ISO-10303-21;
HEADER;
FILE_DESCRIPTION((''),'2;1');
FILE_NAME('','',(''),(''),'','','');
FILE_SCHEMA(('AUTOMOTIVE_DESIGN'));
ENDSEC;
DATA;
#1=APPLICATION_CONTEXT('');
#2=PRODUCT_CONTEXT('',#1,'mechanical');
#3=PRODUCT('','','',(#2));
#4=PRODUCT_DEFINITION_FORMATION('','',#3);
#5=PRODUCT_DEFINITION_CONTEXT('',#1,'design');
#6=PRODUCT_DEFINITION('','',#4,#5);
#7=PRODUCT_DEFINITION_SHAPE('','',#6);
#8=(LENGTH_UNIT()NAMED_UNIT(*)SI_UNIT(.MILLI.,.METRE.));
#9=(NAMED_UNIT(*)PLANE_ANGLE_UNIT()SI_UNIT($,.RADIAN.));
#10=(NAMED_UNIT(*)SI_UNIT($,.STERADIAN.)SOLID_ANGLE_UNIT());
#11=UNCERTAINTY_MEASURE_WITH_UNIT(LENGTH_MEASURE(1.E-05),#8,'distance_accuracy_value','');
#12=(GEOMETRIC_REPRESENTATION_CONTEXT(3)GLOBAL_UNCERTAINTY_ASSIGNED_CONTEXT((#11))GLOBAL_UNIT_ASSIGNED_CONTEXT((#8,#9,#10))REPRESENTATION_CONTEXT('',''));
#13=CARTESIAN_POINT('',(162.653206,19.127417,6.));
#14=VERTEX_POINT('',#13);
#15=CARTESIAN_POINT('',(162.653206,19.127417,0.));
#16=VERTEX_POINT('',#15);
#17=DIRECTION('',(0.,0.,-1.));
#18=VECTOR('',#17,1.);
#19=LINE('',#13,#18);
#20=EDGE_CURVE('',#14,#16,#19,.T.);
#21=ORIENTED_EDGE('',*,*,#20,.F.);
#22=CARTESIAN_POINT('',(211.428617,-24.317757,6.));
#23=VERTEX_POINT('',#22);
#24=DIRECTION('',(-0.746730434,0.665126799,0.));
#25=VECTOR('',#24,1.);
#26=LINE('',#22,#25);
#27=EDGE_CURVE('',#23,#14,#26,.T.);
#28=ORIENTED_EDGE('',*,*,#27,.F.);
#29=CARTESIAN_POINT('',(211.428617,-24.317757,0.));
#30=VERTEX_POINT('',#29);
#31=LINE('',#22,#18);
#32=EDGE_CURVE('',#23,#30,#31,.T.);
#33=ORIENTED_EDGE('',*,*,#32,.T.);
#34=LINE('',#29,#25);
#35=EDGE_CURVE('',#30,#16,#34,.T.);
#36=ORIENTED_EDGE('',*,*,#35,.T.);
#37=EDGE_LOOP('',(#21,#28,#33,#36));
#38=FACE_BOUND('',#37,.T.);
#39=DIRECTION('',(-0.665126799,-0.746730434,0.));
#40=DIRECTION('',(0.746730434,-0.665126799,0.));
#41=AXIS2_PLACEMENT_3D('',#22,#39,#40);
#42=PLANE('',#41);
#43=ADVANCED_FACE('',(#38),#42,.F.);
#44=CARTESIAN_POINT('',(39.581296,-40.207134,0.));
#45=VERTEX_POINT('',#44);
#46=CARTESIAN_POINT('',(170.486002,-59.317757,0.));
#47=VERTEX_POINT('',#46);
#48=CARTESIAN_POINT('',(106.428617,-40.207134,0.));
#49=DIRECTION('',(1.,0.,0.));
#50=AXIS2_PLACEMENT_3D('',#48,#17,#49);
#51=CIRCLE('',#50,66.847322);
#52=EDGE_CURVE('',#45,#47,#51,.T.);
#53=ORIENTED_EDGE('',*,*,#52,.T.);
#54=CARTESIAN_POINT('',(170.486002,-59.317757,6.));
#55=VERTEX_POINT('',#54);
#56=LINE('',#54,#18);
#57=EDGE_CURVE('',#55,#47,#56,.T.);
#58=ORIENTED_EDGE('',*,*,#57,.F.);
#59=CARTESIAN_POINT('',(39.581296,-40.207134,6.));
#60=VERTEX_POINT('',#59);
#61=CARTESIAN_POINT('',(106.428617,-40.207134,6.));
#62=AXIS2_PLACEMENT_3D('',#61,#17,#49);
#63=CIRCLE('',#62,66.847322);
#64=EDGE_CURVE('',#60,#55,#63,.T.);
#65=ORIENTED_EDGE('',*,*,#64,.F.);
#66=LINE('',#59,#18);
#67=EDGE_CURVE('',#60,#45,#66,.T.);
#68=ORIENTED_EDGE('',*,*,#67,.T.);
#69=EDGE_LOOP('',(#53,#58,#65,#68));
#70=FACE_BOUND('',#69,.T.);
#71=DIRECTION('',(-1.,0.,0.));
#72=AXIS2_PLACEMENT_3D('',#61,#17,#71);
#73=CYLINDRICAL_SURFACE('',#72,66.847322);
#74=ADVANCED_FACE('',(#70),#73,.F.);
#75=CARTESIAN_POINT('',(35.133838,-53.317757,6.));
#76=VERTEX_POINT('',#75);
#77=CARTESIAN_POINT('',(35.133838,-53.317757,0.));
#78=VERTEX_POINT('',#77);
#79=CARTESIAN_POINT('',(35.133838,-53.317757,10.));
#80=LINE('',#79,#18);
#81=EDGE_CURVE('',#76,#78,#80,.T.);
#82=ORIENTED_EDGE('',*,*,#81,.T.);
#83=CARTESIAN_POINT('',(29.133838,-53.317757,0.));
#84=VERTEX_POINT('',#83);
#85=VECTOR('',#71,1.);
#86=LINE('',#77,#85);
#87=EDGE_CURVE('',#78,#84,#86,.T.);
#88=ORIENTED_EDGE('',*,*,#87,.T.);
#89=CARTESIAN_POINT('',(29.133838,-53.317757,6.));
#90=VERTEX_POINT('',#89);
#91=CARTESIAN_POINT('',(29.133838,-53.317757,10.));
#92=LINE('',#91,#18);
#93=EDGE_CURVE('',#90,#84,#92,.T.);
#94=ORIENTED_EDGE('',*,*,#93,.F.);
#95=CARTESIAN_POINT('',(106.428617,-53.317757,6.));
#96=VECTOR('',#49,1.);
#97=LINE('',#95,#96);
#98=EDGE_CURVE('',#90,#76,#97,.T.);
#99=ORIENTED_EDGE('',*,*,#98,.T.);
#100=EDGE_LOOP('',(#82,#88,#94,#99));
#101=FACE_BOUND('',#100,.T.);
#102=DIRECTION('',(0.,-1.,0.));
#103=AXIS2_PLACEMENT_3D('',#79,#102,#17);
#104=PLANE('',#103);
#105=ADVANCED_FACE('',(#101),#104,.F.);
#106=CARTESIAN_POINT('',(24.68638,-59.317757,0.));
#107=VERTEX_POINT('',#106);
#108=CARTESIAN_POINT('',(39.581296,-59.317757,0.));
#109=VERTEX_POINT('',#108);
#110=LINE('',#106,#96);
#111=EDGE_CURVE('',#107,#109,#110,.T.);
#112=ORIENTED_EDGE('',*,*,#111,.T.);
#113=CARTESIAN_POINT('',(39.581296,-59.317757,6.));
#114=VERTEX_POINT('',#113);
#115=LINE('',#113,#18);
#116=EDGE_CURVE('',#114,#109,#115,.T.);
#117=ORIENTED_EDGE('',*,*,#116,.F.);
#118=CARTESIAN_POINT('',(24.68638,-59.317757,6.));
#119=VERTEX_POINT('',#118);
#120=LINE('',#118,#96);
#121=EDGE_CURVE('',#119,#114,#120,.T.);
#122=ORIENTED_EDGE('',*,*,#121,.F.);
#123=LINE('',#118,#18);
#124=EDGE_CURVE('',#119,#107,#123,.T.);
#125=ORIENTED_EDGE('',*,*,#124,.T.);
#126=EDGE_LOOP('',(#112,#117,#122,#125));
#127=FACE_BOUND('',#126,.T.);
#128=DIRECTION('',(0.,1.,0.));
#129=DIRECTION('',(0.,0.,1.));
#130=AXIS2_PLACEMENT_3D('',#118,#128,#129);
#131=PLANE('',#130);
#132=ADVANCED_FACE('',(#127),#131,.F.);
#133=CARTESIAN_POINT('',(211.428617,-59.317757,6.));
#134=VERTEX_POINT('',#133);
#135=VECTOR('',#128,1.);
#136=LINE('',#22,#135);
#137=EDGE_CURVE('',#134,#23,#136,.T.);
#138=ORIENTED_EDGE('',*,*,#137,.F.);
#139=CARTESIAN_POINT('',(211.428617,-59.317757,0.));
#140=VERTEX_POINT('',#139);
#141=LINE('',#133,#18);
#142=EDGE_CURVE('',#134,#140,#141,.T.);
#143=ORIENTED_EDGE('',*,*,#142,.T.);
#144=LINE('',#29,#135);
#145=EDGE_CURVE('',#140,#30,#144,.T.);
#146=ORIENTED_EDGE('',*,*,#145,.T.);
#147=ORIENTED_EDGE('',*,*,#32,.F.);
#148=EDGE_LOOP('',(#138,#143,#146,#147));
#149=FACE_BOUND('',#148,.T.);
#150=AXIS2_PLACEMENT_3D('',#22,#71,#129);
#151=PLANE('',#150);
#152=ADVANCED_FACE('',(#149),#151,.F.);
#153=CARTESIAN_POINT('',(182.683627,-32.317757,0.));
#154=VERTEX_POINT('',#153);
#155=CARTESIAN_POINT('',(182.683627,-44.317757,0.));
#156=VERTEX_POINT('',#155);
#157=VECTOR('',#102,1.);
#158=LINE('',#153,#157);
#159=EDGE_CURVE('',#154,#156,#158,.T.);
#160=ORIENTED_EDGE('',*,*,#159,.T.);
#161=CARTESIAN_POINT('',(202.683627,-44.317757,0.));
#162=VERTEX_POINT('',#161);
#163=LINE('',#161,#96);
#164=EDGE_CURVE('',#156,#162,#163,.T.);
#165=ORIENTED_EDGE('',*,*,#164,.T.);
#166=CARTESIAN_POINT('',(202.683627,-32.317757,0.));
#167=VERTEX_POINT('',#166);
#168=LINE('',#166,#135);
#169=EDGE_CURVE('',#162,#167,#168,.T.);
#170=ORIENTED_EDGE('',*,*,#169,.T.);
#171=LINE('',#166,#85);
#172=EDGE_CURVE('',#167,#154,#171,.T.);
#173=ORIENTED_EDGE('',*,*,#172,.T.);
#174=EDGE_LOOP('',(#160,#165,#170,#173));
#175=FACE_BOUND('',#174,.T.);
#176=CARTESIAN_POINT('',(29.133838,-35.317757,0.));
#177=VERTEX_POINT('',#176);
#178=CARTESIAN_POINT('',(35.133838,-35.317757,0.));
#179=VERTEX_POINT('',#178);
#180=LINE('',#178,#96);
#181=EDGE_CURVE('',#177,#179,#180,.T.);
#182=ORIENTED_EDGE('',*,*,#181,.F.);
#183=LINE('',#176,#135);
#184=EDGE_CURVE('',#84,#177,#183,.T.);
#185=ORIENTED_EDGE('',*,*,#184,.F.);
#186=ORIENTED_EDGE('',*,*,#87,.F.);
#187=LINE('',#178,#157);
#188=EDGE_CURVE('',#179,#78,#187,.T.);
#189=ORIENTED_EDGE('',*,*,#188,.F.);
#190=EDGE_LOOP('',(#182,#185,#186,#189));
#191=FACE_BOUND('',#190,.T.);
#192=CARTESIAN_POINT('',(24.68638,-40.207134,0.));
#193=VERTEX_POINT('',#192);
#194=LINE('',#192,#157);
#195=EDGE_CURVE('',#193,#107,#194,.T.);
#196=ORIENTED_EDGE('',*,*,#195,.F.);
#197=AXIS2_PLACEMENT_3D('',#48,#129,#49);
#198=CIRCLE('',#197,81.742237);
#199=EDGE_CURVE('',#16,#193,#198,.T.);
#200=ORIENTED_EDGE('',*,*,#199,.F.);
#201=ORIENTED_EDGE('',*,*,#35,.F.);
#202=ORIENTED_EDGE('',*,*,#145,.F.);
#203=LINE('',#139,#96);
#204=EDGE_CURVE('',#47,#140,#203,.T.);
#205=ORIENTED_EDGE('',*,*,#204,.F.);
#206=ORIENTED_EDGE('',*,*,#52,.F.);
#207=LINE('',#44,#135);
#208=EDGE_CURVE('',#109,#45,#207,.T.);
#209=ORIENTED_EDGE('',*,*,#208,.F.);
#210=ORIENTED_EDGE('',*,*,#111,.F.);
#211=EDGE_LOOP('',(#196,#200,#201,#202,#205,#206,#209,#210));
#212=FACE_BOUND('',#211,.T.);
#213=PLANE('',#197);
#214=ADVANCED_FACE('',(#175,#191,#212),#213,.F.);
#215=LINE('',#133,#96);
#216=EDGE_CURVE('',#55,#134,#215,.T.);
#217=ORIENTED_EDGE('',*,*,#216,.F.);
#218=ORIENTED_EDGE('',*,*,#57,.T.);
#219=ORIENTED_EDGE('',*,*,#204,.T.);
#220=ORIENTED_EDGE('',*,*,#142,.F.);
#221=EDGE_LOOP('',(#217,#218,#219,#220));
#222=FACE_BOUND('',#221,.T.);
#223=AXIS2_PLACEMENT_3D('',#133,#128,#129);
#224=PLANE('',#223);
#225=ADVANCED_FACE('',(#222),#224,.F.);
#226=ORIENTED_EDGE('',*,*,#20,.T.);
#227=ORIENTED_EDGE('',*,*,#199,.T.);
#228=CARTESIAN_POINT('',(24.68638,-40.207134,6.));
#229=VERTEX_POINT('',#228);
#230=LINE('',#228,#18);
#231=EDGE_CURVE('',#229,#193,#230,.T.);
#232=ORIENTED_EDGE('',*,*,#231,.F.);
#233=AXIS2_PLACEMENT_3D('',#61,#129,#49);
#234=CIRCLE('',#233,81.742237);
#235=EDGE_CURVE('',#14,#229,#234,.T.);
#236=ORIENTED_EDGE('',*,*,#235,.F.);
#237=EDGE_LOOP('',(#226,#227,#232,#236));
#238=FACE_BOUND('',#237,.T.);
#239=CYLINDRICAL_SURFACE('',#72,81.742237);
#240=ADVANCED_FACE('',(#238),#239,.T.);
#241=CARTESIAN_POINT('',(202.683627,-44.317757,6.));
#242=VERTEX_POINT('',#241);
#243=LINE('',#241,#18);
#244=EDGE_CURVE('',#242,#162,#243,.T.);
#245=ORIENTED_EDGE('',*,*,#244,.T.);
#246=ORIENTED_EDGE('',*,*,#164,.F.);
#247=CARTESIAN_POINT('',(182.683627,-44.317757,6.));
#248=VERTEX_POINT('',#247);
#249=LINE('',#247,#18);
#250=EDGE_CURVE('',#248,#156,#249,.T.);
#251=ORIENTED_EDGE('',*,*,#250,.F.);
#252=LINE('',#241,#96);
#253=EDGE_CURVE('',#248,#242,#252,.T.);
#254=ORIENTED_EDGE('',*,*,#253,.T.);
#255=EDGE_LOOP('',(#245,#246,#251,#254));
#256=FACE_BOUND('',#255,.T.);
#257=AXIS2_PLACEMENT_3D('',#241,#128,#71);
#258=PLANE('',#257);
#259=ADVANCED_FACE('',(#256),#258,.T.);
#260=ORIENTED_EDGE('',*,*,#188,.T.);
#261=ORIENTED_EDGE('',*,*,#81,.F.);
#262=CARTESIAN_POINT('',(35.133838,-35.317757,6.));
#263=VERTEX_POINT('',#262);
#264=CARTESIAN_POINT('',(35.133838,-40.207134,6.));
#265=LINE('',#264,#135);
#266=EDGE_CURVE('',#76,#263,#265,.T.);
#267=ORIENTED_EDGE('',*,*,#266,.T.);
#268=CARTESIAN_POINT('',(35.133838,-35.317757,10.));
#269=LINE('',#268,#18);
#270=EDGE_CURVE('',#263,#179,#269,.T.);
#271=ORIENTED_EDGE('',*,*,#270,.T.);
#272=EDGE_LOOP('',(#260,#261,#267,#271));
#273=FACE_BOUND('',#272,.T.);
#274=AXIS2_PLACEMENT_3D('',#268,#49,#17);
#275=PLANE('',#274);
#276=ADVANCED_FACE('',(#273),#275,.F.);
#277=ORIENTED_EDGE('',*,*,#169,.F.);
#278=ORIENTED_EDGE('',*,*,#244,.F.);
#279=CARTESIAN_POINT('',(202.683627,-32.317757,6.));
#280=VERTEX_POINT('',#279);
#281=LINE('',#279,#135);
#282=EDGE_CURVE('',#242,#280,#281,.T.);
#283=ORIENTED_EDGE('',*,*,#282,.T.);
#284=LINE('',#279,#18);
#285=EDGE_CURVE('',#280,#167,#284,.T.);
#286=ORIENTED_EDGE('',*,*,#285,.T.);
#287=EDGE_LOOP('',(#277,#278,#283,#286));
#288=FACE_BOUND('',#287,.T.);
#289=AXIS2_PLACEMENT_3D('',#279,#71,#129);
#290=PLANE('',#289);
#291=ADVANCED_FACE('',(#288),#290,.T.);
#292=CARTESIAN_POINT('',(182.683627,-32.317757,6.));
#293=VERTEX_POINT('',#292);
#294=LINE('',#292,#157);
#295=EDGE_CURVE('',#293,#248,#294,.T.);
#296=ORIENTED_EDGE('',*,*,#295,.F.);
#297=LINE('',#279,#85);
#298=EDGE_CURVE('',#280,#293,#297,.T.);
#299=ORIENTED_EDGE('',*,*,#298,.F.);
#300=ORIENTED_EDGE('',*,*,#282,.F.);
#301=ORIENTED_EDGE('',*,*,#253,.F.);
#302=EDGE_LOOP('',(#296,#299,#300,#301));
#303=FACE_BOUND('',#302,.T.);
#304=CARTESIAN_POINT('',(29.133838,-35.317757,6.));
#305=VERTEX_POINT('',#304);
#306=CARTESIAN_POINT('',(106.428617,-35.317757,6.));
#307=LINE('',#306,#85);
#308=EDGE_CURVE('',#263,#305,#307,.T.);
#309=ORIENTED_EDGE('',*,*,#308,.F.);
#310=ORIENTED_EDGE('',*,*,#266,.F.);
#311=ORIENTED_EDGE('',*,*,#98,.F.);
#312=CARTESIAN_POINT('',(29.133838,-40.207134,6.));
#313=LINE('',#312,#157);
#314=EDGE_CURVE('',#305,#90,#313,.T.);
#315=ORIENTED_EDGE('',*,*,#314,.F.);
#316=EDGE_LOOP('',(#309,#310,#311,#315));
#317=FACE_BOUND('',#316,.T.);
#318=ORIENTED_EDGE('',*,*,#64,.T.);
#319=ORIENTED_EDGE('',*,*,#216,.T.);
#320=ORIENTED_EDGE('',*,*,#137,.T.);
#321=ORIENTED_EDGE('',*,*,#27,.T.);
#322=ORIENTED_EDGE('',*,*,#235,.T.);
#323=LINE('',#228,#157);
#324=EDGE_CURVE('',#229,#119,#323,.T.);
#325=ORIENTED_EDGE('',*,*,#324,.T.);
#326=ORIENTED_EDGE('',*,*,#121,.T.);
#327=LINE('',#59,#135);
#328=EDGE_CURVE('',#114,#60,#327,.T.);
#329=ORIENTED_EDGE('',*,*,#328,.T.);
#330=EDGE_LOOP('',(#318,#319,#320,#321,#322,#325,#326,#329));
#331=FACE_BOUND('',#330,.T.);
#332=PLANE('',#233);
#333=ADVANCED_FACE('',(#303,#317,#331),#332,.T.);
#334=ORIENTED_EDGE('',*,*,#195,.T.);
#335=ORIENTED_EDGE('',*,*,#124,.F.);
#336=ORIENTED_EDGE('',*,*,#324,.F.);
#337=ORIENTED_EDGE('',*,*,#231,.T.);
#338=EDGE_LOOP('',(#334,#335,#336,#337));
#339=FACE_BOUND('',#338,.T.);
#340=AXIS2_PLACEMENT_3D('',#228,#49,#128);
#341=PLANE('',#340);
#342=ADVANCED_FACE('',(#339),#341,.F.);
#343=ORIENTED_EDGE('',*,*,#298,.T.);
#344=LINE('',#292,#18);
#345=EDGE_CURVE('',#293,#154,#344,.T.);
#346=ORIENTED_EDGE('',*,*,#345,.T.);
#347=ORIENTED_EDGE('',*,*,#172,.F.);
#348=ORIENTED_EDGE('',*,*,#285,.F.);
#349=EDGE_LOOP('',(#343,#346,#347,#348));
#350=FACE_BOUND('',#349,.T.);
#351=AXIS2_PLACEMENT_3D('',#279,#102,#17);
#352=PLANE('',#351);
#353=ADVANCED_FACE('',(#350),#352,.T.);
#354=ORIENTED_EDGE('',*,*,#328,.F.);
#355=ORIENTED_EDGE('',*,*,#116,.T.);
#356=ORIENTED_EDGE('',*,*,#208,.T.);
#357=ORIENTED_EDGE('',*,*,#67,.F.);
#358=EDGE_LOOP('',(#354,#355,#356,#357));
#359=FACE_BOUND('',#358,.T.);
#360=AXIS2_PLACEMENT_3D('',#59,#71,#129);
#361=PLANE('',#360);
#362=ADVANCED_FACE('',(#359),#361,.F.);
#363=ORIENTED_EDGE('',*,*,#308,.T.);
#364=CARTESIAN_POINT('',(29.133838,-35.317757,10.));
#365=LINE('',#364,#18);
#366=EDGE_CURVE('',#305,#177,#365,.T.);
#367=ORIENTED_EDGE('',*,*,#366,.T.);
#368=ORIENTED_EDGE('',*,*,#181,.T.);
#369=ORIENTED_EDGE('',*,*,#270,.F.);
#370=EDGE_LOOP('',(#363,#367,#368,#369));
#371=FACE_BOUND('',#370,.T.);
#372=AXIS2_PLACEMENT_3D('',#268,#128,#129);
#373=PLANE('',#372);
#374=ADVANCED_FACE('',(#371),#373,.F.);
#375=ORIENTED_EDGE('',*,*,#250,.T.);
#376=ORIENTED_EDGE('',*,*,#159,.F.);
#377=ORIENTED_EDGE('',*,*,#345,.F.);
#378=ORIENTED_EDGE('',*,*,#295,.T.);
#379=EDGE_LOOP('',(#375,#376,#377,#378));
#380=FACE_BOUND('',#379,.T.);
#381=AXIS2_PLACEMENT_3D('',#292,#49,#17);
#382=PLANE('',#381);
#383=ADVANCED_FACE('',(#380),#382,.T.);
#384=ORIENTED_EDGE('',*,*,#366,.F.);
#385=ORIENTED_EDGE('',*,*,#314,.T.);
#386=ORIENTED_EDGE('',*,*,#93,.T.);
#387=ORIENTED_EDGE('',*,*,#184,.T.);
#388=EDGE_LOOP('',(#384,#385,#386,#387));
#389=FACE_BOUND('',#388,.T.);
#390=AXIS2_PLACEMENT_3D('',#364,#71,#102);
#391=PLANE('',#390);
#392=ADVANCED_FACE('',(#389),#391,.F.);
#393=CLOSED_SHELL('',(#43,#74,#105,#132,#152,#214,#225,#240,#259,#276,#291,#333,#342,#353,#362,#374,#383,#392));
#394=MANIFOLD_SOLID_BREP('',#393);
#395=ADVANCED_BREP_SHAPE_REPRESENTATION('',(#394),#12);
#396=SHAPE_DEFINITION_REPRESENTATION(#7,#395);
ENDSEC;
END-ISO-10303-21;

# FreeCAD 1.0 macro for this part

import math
import FreeCAD as App
import Part
import Sketcher
from FreeCAD import Vector
Q = App.Units.Quantity

doc = App.newDocument("Part")
body = doc.addObject("PartDesign::Body", "Body")

sketch1 = doc.addObject("Sketcher::SketchObject", "Sketch")
body.addObject(sketch1)
sketch1.AttachmentSupport = (doc.XY_Plane, [""])
sketch1.MapMode = "FlatFace"
sketch1.addGeometry(Part.LineSegment(Vector(211, -24, 0), Vector(163, 19, 0)), False)
sketch1.addGeometry(Part.ArcOfCircle(Part.Circle(Vector(106, -40, 0), Vector(0, 0, 1), 82), math.radians(47), math.radians(180)), False)
sketch1.addGeometry(Part.LineSegment(Vector(25, -40, 0), Vector(25, -59, 0)), False)
sketch1.addGeometry(Part.LineSegment(Vector(25, -59, 0), Vector(40, -59, 0)), False)
sketch1.addGeometry(Part.LineSegment(Vector(40, -59, 0), Vector(40, -40, 0)), False)
sketch1.addGeometry(Part.ArcOfCircle(Part.Circle(Vector(106, -40, 0), Vector(0, 0, 1), 67), math.radians(-17), math.radians(180)), False)
sketch1.addGeometry(Part.LineSegment(Vector(170, -59, 0), Vector(211, -59, 0)), False)
sketch1.addGeometry(Part.LineSegment(Vector(211, -59, 0), Vector(211, -24, 0)), False)
sketch1.addGeometry(Part.LineSegment(Vector(203, -44, 0), Vector(183, -44, 0)), False)
sketch1.addGeometry(Part.LineSegment(Vector(183, -44, 0), Vector(183, -32, 0)), False)
sketch1.addGeometry(Part.LineSegment(Vector(183, -32, 0), Vector(203, -32, 0)), False)
sketch1.addGeometry(Part.LineSegment(Vector(203, -32, 0), Vector(203, -44, 0)), False)
sketch1.addConstraint(Sketcher.Constraint("Coincident", 0, 2, 1, 1))
sketch1.addConstraint(Sketcher.Constraint("Tangent", 1, 2, 2, 1))
sketch1.addConstraint(Sketcher.Constraint("Coincident", 2, 2, 3, 1))
sketch1.addConstraint(Sketcher.Constraint("Coincident", 3, 2, 4, 1))
sketch1.addConstraint(Sketcher.Constraint("Tangent", 4, 2, 5, 2))
sketch1.addConstraint(Sketcher.Constraint("Coincident", 5, 1, 6, 1))
sketch1.addConstraint(Sketcher.Constraint("Coincident", 6, 2, 7, 1))
sketch1.addConstraint(Sketcher.Constraint("Coincident", 7, 2, 0, 1))
sketch1.addConstraint(Sketcher.Constraint("Coincident", 8, 2, 9, 1))
sketch1.addConstraint(Sketcher.Constraint("Coincident", 9, 2, 10, 1))
sketch1.addConstraint(Sketcher.Constraint("Coincident", 10, 2, 11, 1))
sketch1.addConstraint(Sketcher.Constraint("Coincident", 11, 2, 8, 1))
sketch1.addConstraint(Sketcher.Constraint("Vertical", 2))
sketch1.addConstraint(Sketcher.Constraint("Horizontal", 3))
sketch1.addConstraint(Sketcher.Constraint("Vertical", 4))
sketch1.addConstraint(Sketcher.Constraint("Horizontal", 6))
sketch1.addConstraint(Sketcher.Constraint("Vertical", 7))
sketch1.addConstraint(Sketcher.Constraint("Horizontal", 8))
sketch1.addConstraint(Sketcher.Constraint("Vertical", 9))
sketch1.addConstraint(Sketcher.Constraint("Horizontal", 10))
sketch1.addConstraint(Sketcher.Constraint("Vertical", 11))
sketch1.addConstraint(Sketcher.Constraint("Coincident", 5, 3, 1, 3))
sketch1.addConstraint(Sketcher.Constraint("Horizontal", 3, 2, 5, 1))
sketch1.addConstraint(Sketcher.Constraint("DistanceX", 8, 2, 8, 1, Q("20 mm")))
sketch1.addConstraint(Sketcher.Constraint("DistanceY", 7, 1, 7, 2, Q("35 mm")))
sketch1.addConstraint(Sketcher.Constraint("DistanceY", 9, 1, 9, 2, Q("12 mm")))
sketch1.addConstraint(Sketcher.Constraint("DistanceX", 1, 3, 6, 2, Q("105 mm")))
sketch1.addConstraint(Sketcher.Constraint("DistanceY", 5, 1, 8, 2, Q("15 mm")))
sketch1.addConstraint(Sketcher.Constraint("Radius", 5, Q("66.847322 mm")))
sketch1.addConstraint(Sketcher.Constraint("DistanceX", -1, 1, 5, 1, Q("170.486002 mm")))
sketch1.addConstraint(Sketcher.Constraint("Radius", 1, Q("81.742237 mm")))
sketch1.addConstraint(Sketcher.Constraint("DistanceX", 6, 1, 6, 2, Q("40.942615 mm")))
sketch1.addConstraint(Sketcher.Constraint("DistanceX", 5, 3, 0, 2, Q("56.224588 mm")))
sketch1.addConstraint(Sketcher.Constraint("DistanceX", 8, 2, 6, 2, Q("28.74499 mm")))
sketch1.addConstraint(Sketcher.Constraint("DistanceY", 1, 3, -1, 1, Q("40.207134 mm")))
pad1 = doc.addObject("PartDesign::Pad", "Pad")
body.addObject(pad1)
pad1.Profile = sketch1
pad1.Length = 6

sketch2 = doc.addObject("Sketcher::SketchObject", "Sketch001")
body.addObject(sketch2)
sketch2.AttachmentSupport = (doc.XY_Plane, [""])
sketch2.MapMode = "FlatFace"
sketch2.addGeometry(Part.LineSegment(Vector(35, -35, 0), Vector(35, -53, 0)), False)
sketch2.addGeometry(Part.LineSegment(Vector(35, -53, 0), Vector(29, -53, 0)), False)
sketch2.addGeometry(Part.LineSegment(Vector(29, -53, 0), Vector(29, -35, 0)), False)
sketch2.addGeometry(Part.LineSegment(Vector(29, -35, 0), Vector(35, -35, 0)), False)
sketch2.addConstraint(Sketcher.Constraint("Coincident", 0, 2, 1, 1))
sketch2.addConstraint(Sketcher.Constraint("Coincident", 1, 2, 2, 1))
sketch2.addConstraint(Sketcher.Constraint("Coincident", 2, 2, 3, 1))
sketch2.addConstraint(Sketcher.Constraint("Coincident", 3, 2, 0, 1))
sketch2.addConstraint(Sketcher.Constraint("Vertical", 0))
sketch2.addConstraint(Sketcher.Constraint("Horizontal", 1))
sketch2.addConstraint(Sketcher.Constraint("Vertical", 2))
sketch2.addConstraint(Sketcher.Constraint("Horizontal", 3))
sketch2.addConstraint(Sketcher.Constraint("DistanceX", 1, 2, 1, 1, Q("6 mm")))
sketch2.addConstraint(Sketcher.Constraint("DistanceY", 0, 2, 0, 1, Q("18 mm")))
sketch2.addConstraint(Sketcher.Constraint("DistanceX", -1, 1, 0, 2, Q("35.133838 mm")))
sketch2.addConstraint(Sketcher.Constraint("DistanceY", 0, 2, -1, 1, Q("53.317757 mm")))
pocket1 = doc.addObject("PartDesign::Pocket", "Pocket")
body.addObject(pocket1)
pocket1.Profile = sketch2
pocket1.Length = 10
pocket1.Reversed = True

doc.recompute()
